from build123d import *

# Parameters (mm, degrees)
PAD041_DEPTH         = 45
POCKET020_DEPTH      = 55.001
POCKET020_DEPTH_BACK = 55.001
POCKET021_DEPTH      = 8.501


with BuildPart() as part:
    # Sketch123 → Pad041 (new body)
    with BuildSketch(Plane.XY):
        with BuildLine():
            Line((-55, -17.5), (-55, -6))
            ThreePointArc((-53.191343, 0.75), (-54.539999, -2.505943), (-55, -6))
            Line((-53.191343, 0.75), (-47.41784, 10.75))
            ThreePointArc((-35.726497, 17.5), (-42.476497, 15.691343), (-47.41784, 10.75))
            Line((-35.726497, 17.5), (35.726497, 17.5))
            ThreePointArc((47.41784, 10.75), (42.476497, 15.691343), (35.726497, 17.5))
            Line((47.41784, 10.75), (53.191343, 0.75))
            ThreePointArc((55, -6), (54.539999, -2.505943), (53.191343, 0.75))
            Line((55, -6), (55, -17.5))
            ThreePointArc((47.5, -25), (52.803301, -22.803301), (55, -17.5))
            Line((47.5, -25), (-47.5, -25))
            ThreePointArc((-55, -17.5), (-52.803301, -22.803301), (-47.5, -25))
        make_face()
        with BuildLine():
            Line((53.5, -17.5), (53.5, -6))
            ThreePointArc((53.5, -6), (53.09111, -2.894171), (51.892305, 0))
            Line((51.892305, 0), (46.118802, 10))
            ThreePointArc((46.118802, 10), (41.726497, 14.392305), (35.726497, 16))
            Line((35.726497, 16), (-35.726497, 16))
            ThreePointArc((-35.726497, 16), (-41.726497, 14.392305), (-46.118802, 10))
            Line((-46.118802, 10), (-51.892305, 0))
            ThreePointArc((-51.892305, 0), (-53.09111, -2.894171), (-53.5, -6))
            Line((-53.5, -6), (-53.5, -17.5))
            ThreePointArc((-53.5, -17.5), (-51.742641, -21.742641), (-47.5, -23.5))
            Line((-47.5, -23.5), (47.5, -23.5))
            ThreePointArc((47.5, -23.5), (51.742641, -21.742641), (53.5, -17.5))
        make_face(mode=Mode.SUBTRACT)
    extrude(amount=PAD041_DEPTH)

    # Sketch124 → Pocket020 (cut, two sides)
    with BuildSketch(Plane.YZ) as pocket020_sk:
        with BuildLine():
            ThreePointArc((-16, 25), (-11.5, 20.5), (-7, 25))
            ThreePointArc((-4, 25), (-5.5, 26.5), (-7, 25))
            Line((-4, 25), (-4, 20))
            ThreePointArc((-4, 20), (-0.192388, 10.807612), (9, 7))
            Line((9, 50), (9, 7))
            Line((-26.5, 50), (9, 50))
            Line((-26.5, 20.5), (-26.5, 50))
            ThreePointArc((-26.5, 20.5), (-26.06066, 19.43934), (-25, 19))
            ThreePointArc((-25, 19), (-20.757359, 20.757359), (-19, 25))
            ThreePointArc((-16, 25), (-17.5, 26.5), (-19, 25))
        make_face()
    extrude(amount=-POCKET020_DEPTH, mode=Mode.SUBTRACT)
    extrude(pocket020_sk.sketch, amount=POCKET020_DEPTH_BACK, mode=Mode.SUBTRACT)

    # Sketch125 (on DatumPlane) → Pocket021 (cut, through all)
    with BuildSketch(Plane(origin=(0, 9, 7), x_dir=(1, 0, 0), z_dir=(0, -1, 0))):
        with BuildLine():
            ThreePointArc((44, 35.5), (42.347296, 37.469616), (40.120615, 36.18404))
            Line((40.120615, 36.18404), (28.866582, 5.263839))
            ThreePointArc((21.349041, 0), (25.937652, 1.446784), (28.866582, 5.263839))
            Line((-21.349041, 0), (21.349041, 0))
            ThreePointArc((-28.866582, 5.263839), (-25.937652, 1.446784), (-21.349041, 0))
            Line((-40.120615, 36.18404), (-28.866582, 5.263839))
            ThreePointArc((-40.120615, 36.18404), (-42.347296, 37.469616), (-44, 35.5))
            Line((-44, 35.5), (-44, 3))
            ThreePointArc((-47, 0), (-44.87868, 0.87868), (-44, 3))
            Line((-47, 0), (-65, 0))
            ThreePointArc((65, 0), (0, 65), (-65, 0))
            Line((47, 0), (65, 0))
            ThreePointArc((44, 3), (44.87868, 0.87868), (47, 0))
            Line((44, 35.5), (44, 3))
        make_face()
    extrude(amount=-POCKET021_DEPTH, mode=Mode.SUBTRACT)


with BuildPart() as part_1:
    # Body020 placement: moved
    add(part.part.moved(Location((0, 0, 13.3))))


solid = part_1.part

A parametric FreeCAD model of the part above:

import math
import FreeCAD as App
import Part
import Sketcher
from FreeCAD import Vector
Q = App.Units.Quantity

doc = App.newDocument("Part")
body = doc.addObject("PartDesign::Body", "Body")

# Sketch on XY plane
sketch1 = body.newObject("Sketcher::SketchObject", "Sketch")
sketch1.AttachmentSupport = (doc.getObject("XY_Plane"), [""])
sketch1.MapMode = "FlatFace"
sketch1.addGeometry([
    Part.LineSegment(Vector(-55, -6, 0), Vector(-55, -18, 0)),  # 0
    Part.ArcOfCircle(Part.Circle(Vector(-48, -18, 0), Vector(0, 0, 1), 7), math.radians(180), math.radians(270)),  # 1
    Part.LineSegment(Vector(-48, -25, 0), Vector(48, -25, 0)),  # 2
    Part.ArcOfCircle(Part.Circle(Vector(48, -18, 0), Vector(0, 0, 1), 7), math.radians(-90), math.radians(0)),  # 3
    Part.LineSegment(Vector(55, -18, 0), Vector(55, -6, 0)),  # 4
    Part.ArcOfCircle(Part.Circle(Vector(42, -6, 0), Vector(0, 0, 1), 13), math.radians(0), math.radians(30)),  # 5
    Part.LineSegment(Vector(53, 1, 0), Vector(47, 11, 0)),  # 6
    Part.ArcOfCircle(Part.Circle(Vector(36, 4, 0), Vector(0, 0, 1), 13), math.radians(30), math.radians(90)),  # 7
    Part.LineSegment(Vector(36, 18, 0), Vector(-36, 18, 0)),  # 8
    Part.ArcOfCircle(Part.Circle(Vector(-36, 4, 0), Vector(0, 0, 1), 13), math.radians(90), math.radians(150)),  # 9
    Part.LineSegment(Vector(-47, 11, 0), Vector(-53, 1, 0)),  # 10
    Part.ArcOfCircle(Part.Circle(Vector(-42, -6, 0), Vector(0, 0, 1), 13), math.radians(150), math.radians(180)),  # 11
    Part.ArcOfCircle(Part.Circle(Vector(48, -18, 0), Vector(0, 0, 1), 6), math.radians(-90), math.radians(0)),  # 12
    Part.LineSegment(Vector(48, -24, 0), Vector(-48, -24, 0)),  # 13
    Part.ArcOfCircle(Part.Circle(Vector(-48, -18, 0), Vector(0, 0, 1), 6), math.radians(180), math.radians(270)),  # 14
    Part.LineSegment(Vector(-54, -18, 0), Vector(-54, -6, 0)),  # 15
    Part.ArcOfCircle(Part.Circle(Vector(-42, -6, 0), Vector(0, 0, 1), 12), math.radians(150), math.radians(180)),  # 16
    Part.LineSegment(Vector(-52, 0, 0), Vector(-46, 10, 0)),  # 17
    Part.ArcOfCircle(Part.Circle(Vector(-36, 4, 0), Vector(0, 0, 1), 12), math.radians(90), math.radians(150)),  # 18
    Part.LineSegment(Vector(-36, 16, 0), Vector(36, 16, 0)),  # 19
    Part.ArcOfCircle(Part.Circle(Vector(36, 4, 0), Vector(0, 0, 1), 12), math.radians(30), math.radians(90)),  # 20
    Part.LineSegment(Vector(46, 10, 0), Vector(52, 0, 0)),  # 21
    Part.ArcOfCircle(Part.Circle(Vector(42, -6, 0), Vector(0, 0, 1), 12), math.radians(0), math.radians(30)),  # 22
    Part.LineSegment(Vector(54, -6, 0), Vector(54, -18, 0)),  # 23
], False)
sketch1.addConstraint([
    Sketcher.Constraint("Tangent", 0, 2, 1, 1),
    Sketcher.Constraint("Tangent", 1, 2, 2, 1),
    Sketcher.Constraint("Tangent", 2, 2, 3, 1),
    Sketcher.Constraint("Tangent", 3, 2, 4, 1),
    Sketcher.Constraint("Tangent", 4, 2, 5, 1),
    Sketcher.Constraint("Tangent", 5, 2, 6, 1),
    Sketcher.Constraint("Tangent", 6, 2, 7, 1),
    Sketcher.Constraint("Tangent", 7, 2, 8, 1),
    Sketcher.Constraint("Tangent", 8, 2, 9, 1),
    Sketcher.Constraint("Tangent", 9, 2, 10, 1),
    Sketcher.Constraint("Tangent", 10, 2, 11, 1),
    Sketcher.Constraint("Tangent", 11, 2, 0, 1),
    Sketcher.Constraint("Tangent", 12, 1, 13, 1),
    Sketcher.Constraint("Tangent", 13, 2, 14, 2),
    Sketcher.Constraint("Tangent", 14, 1, 15, 1),
    Sketcher.Constraint("Tangent", 15, 2, 16, 2),
    Sketcher.Constraint("Tangent", 16, 1, 17, 1),
    Sketcher.Constraint("Tangent", 17, 2, 18, 2),
    Sketcher.Constraint("Tangent", 18, 1, 19, 1),
    Sketcher.Constraint("Tangent", 19, 2, 20, 2),
    Sketcher.Constraint("Tangent", 20, 1, 21, 1),
    Sketcher.Constraint("Tangent", 21, 2, 22, 2),
    Sketcher.Constraint("Tangent", 22, 1, 23, 1),
    Sketcher.Constraint("Tangent", 23, 2, 12, 2),
    Sketcher.Constraint("Vertical", 0),
    Sketcher.Constraint("Horizontal", 2),
    Sketcher.Constraint("Vertical", 4),
    Sketcher.Constraint("Horizontal", 8),
    Sketcher.Constraint("Horizontal", 13),
    Sketcher.Constraint("Vertical", 15),
    Sketcher.Constraint("Horizontal", 19),
    Sketcher.Constraint("Vertical", 23),
    Sketcher.Constraint("Coincident", 12, 3, 3, 3),
    Sketcher.Constraint("Coincident", 14, 3, 1, 3),
    Sketcher.Constraint("Coincident", 16, 3, 11, 3),
    Sketcher.Constraint("Coincident", 18, 3, 9, 3),
    Sketcher.Constraint("Coincident", 20, 3, 7, 3),
    Sketcher.Constraint("Coincident", 22, 3, 5, 3),
    Sketcher.Constraint("Equal", 1, 3),
    Sketcher.Constraint("Equal", 7, 9),
    Sketcher.Constraint("Equal", 5, 11),
    Sketcher.Constraint("Symmetric", 16, 1, 21, 2, -1, 1),
    Sketcher.Constraint("Symmetric", 5, 3, 11, 3, -2),
    Sketcher.Constraint("Parallel", 10, 17),
    Sketcher.Constraint("Radius", 12, 5.999999),
    Sketcher.Constraint("Radius", 18, 12.0),
    Sketcher.Constraint("Radius", 1, 7.5),
    Sketcher.Constraint("DistanceX", 2, 1, 2, 2, 95.0),
    Sketcher.Constraint("Angle", 6, Q("120.000001 deg")),
    Sketcher.Constraint("DistanceY", 0, 2, 0, 1, 11.5),
    Sketcher.Constraint("DistanceY", -1, 1, 7, 3, 4.0),
    Sketcher.Constraint("DistanceY", 16, 3, -1, 1, 5.999999),
])
pad1 = body.newObject("PartDesign::Pad", "Pad")
pad1.Profile = sketch1
pad1.Length = 45

# Sketch on YZ plane
sketch2 = body.newObject("Sketcher::SketchObject", "Sketch001")
sketch2.AttachmentSupport = (doc.getObject("YZ_Plane"), [""])
sketch2.MapMode = "FlatFace"
sketch2.addGeometry([
    Part.ArcOfCircle(Part.Circle(Vector(-11.5, 25, 0), Vector(0, 0, 1), 4.5), math.radians(180), math.radians(360)),  # 0
    Part.ArcOfCircle(Part.Circle(Vector(-5.5, 25, 0), Vector(0, 0, 1), 1.5), math.radians(0), math.radians(180)),  # 1
    Part.LineSegment(Vector(-4, 25, 0), Vector(-4, 20, 0)),  # 2
    Part.ArcOfCircle(Part.Circle(Vector(9, 20, 0), Vector(0, 0, 1), 13), math.radians(-180), math.radians(-90)),  # 3
    Part.LineSegment(Vector(9, 7, 0), Vector(9, 50, 0)),  # 4
    Part.LineSegment(Vector(9, 50, 0), Vector(-26.5, 50, 0)),  # 5
    Part.LineSegment(Vector(-26.5, 50, 0), Vector(-26.5, 20.5, 0)),  # 6
    Part.ArcOfCircle(Part.Circle(Vector(-25, 20.5, 0), Vector(0, 0, 1), 1.5), math.radians(-180), math.radians(-90)),  # 7
    Part.ArcOfCircle(Part.Circle(Vector(-25, 25, 0), Vector(0, 0, 1), 6), math.radians(-90), math.radians(0)),  # 8
    Part.ArcOfCircle(Part.Circle(Vector(-17.5, 25, 0), Vector(0, 0, 1), 1.5), math.radians(0), math.radians(180)),  # 9
], False)
sketch2.addConstraint([
    Sketcher.Constraint("Tangent", 0, 2, 1, 2),
    Sketcher.Constraint("Tangent", 1, 1, 2, 1),
    Sketcher.Constraint("Tangent", 2, 2, 3, 1),
    Sketcher.Constraint("Coincident", 3, 2, 4, 1),
    Sketcher.Constraint("Coincident", 4, 2, 5, 1),
    Sketcher.Constraint("Coincident", 5, 2, 6, 1),
    Sketcher.Constraint("Tangent", 6, 2, 7, 1),
    Sketcher.Constraint("Tangent", 7, 2, 8, 1),
    Sketcher.Constraint("Tangent", 8, 2, 9, 2),
    Sketcher.Constraint("Tangent", 9, 1, 0, 1),
    Sketcher.Constraint("Vertical", 2),
    Sketcher.Constraint("Vertical", 4),
    Sketcher.Constraint("Horizontal", 5),
    Sketcher.Constraint("Vertical", 6),
    Sketcher.Constraint("Equal", 1, 7),
    Sketcher.Constraint("Equal", 7, 9),
    Sketcher.Constraint("Horizontal", 0, 3, 1, 3),
    Sketcher.Constraint("Horizontal", 1, 3, 8, 3),
    Sketcher.Constraint("Horizontal", 8, 3, 9, 3),
    Sketcher.Constraint("Vertical", 7, 3, 8, 3),
    Sketcher.Constraint("Radius", 3, 13.000001),
    Sketcher.Constraint("Radius", 8, 5.999999),
    Sketcher.Constraint("Radius", 0, 4.5),
    Sketcher.Constraint("Radius", 1, 1.5),
    Sketcher.Constraint("DistanceY", 2, 2, 2, 1, 5.0),
    Sketcher.Constraint("DistanceY", 4, 1, 4, 2, 43.0),
    Sketcher.Constraint("DistanceX", 5, 2, 5, 1, 35.5),
    Sketcher.Constraint("DistanceY", -1, 1, 0, 3, 25.0),
    Sketcher.Constraint("DistanceX", -1, 1, 3, 3, 9.000001),
])
pocket1 = body.newObject("PartDesign::Pocket", "Pocket")
pocket1.Profile = sketch2
pocket1.Type = "ThroughAll"
pocket1.Midplane = True

# Sketch on XZ plane
sketch3 = body.newObject("Sketcher::SketchObject", "Sketch002")
sketch3.AttachmentSupport = (doc.getObject("XZ_Plane"), [""])
sketch3.MapMode = "FlatFace"
sketch3.AttachmentOffset = App.Placement(Vector(0, 0, -9), App.Rotation())
sketch3.addGeometry([
    Part.ArcOfCircle(Part.Circle(Vector(42, 42.5, 0), Vector(0, 0, 1), 2), math.radians(0), math.radians(160)),  # 0
    Part.LineSegment(Vector(44, 42.5, 0), Vector(44, 10, 0)),  # 1
    Part.ArcOfCircle(Part.Circle(Vector(47, 10, 0), Vector(0, 0, 1), 3), math.radians(-180), math.radians(-90)),  # 2
    Part.LineSegment(Vector(47, 7, 0), Vector(65, 7, 0)),  # 3
    Part.ArcOfCircle(Part.Circle(Vector(0, 7, 0), Vector(0, 0, 1), 65), math.radians(0), math.radians(180)),  # 4
    Part.LineSegment(Vector(-65, 7, 0), Vector(-47, 7, 0)),  # 5
    Part.ArcOfCircle(Part.Circle(Vector(-47, 10, 0), Vector(0, 0, 1), 3), math.radians(-90), math.radians(0)),  # 6
    Part.LineSegment(Vector(-44, 10, 0), Vector(-44, 42.5, 0)),  # 7
    Part.ArcOfCircle(Part.Circle(Vector(-42, 42.5, 0), Vector(0, 0, 1), 2), math.radians(20), math.radians(180)),  # 8
    Part.LineSegment(Vector(-40.1, 43.2, 0), Vector(-28.9, 12.3, 0)),  # 9
    Part.ArcOfCircle(Part.Circle(Vector(-21.3, 15, 0), Vector(0, 0, 1), 8), math.radians(-160), math.radians(-90)),  # 10
    Part.LineSegment(Vector(-21.3, 7, 0), Vector(21.3, 7, 0)),  # 11
    Part.ArcOfCircle(Part.Circle(Vector(21.3, 15, 0), Vector(0, 0, 1), 8), math.radians(-90), math.radians(-20)),  # 12
    Part.LineSegment(Vector(28.9, 12.3, 0), Vector(40.1, 43.2, 0)),  # 13
], False)
sketch3.addConstraint([
    Sketcher.Constraint("Tangent", 0, 1, 1, 1),
    Sketcher.Constraint("Tangent", 1, 2, 2, 1),
    Sketcher.Constraint("Tangent", 2, 2, 3, 1),
    Sketcher.Constraint("Coincident", 3, 2, 4, 1),
    Sketcher.Constraint("Coincident", 4, 2, 5, 1),
    Sketcher.Constraint("Tangent", 5, 2, 6, 1),
    Sketcher.Constraint("Tangent", 6, 2, 7, 1),
    Sketcher.Constraint("Tangent", 7, 2, 8, 2),
    Sketcher.Constraint("Tangent", 8, 1, 9, 1),
    Sketcher.Constraint("Tangent", 9, 2, 10, 1),
    Sketcher.Constraint("Tangent", 10, 2, 11, 1),
    Sketcher.Constraint("Tangent", 11, 2, 12, 1),
    Sketcher.Constraint("Tangent", 12, 2, 13, 1),
    Sketcher.Constraint("Tangent", 13, 2, 0, 2),
    Sketcher.Constraint("Vertical", 1),
    Sketcher.Constraint("Horizontal", 3),
    Sketcher.Constraint("Horizontal", 5),
    Sketcher.Constraint("Vertical", 7),
    Sketcher.Constraint("Horizontal", 11),
    Sketcher.Constraint("Equal", 2, 6),
    Sketcher.Constraint("Equal", 0, 8),
    Sketcher.Constraint("Equal", 10, 12),
    Sketcher.Constraint("Symmetric", 2, 3, 6, 3, -2),
    Sketcher.Constraint("Symmetric", 9, 2, 12, 2, -2),
    Sketcher.Constraint("PointOnObject", 4, 3, -2),
    Sketcher.Constraint("Horizontal", 4, 3, 2, 2),
    Sketcher.Constraint("Horizontal", 5, 2, 10, 2),
    Sketcher.Constraint("Radius", 0, 2.0),
    Sketcher.Constraint("Radius", 2, 3.000001),
    Sketcher.Constraint("Radius", 4, 65.0),
    Sketcher.Constraint("DistanceX", 3, 1, 3, 2, 18.0),
    Sketcher.Constraint("Angle", 9, Q("-70 deg")),
    Sketcher.Constraint("DistanceY", 1, 2, 1, 1, 32.5),
    Sketcher.Constraint("DistanceY", -1, 1, 2, 3, 10.000001),
    Sketcher.Constraint("DistanceY", 6, 3, 10, 3, 5.000001),
])
pocket2 = body.newObject("PartDesign::Pocket", "Pocket001")
pocket2.Profile = sketch3
pocket2.Type = "ThroughAll"
body2 = doc.addObject("PartDesign::Body", "Body001")
doc.recompute()

body.Placement = App.Placement(Vector(0, 0, 13.3), App.Rotation(Vector(0, 0, 1), 0))
boolean = body2.newObject("PartDesign::Boolean", "Boolean")
boolean.Type = "Fuse"
boolean.addObjects([body])

doc.recompute()
